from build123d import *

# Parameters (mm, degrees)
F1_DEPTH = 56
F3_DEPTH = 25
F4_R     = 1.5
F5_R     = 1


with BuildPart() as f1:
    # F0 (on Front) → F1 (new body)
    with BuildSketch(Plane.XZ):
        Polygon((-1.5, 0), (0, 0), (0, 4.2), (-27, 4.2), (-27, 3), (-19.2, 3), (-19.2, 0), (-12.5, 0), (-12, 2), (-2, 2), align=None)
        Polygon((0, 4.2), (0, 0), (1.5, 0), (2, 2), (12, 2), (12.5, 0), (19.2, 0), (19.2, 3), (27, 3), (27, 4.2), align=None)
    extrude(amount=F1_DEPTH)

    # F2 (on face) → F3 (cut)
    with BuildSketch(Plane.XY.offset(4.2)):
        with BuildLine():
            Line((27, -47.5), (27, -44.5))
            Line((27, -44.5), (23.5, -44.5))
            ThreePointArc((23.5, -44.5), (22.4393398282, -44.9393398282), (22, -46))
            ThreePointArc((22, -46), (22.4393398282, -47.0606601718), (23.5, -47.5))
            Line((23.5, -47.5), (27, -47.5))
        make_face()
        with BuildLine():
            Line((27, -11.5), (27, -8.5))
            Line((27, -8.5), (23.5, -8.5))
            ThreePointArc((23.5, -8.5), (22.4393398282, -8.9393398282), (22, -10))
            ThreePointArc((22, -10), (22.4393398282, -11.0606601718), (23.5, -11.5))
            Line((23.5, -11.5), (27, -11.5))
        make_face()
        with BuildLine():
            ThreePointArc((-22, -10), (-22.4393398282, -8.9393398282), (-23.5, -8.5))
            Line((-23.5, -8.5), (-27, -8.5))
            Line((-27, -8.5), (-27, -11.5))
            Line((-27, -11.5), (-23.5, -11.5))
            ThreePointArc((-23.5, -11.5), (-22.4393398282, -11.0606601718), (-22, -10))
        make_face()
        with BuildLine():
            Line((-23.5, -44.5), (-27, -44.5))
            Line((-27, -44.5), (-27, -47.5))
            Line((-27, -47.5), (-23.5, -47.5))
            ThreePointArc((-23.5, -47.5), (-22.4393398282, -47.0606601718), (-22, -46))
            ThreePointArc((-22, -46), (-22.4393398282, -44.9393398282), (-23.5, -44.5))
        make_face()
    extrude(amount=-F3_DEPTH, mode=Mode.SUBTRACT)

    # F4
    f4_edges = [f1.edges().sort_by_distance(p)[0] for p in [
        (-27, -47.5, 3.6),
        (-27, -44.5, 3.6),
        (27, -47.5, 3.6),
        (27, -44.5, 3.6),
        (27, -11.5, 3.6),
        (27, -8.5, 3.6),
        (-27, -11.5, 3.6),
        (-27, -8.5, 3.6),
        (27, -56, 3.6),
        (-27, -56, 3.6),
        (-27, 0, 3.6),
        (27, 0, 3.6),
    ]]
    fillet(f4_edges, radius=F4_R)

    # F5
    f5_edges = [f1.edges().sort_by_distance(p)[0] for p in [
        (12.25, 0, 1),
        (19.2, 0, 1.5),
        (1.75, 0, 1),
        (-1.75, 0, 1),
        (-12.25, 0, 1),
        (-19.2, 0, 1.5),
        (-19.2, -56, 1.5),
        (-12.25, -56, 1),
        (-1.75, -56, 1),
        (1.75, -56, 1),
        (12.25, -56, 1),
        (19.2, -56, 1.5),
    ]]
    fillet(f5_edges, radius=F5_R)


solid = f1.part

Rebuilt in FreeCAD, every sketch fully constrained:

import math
import FreeCAD as App
import Part
import Sketcher
Q = App.Units.Quantity


def edges_at(feature, points):
    """Names of the edges that pass closest to the given points."""
    edges = feature.Shape.Edges
    near = lambda p: min(range(len(edges)), key=lambda i: edges[i].distToShape(Part.Vertex(*p))[0])
    return sorted({f"Edge{near(p) + 1}" for p in points})


def add_polygon(sketch, points):
    """Adds a closed chain of lines whose ends are joined by coincident constraints."""
    first, n = sketch.GeometryCount, len(points)
    for a, b in zip(points, points[1:] + points[:1]):
        sketch.addGeometry(Part.LineSegment(App.Vector(*a, 0), App.Vector(*b, 0)), False)
    for i in range(n):
        sketch.addConstraint(Sketcher.Constraint("Coincident", first + i, 2, first + (i + 1) % n, 1))

doc = App.newDocument("Part")
body = doc.addObject("PartDesign::Body", "Body")

sketch1 = body.newObject("Sketcher::SketchObject", "Sketch")
sketch1.AttachmentSupport = (doc.getObject("XZ_Plane"), [""])
sketch1.MapMode = "FlatFace"
add_polygon(sketch1, [(-1.5, 0), (1.5, 0), (2, 2), (12, 2), (12.5, 0), (19.2, 0), (19.2, 3), (27, 3), (27, 4.2), (-27, 4.2), (-27, 3), (-19.2, 3), (-19.2, 0), (-12.5, 0), (-12, 2), (-2, 2)])
sketch1.addConstraint(Sketcher.Constraint("Horizontal", 0))
sketch1.addConstraint(Sketcher.Constraint("Horizontal", 2))
sketch1.addConstraint(Sketcher.Constraint("Horizontal", 4))
sketch1.addConstraint(Sketcher.Constraint("Vertical", 5))
sketch1.addConstraint(Sketcher.Constraint("Horizontal", 6))
sketch1.addConstraint(Sketcher.Constraint("Vertical", 7))
sketch1.addConstraint(Sketcher.Constraint("Horizontal", 8))
sketch1.addConstraint(Sketcher.Constraint("Vertical", 9))
sketch1.addConstraint(Sketcher.Constraint("Horizontal", 10))
sketch1.addConstraint(Sketcher.Constraint("Vertical", 11))
sketch1.addConstraint(Sketcher.Constraint("Horizontal", 12))
sketch1.addConstraint(Sketcher.Constraint("Horizontal", 14))
sketch1.addConstraint(Sketcher.Constraint("Symmetric", 4, 2, 11, 2, -1, 1))
sketch1.addConstraint(Sketcher.Constraint("Symmetric", 0, 2, 15, 2, -1, 1))
sketch1.addConstraint(Sketcher.Constraint("Symmetric", 6, 2, 9, 2, -2))
sketch1.addConstraint(Sketcher.Constraint("Symmetric", 3, 2, 12, 2, -2))
sketch1.addConstraint(Sketcher.Constraint("Symmetric", 2, 2, 13, 2, -2))
sketch1.addConstraint(Sketcher.Constraint("Parallel", 1, 13))
sketch1.addConstraint(Sketcher.Constraint("Parallel", 3, 15))
sketch1.addConstraint(Sketcher.Constraint("Equal", 0, 5))
sketch1.addConstraint(Sketcher.Constraint("DistanceX", 0, 1, 0, 2, Q("3 mm")))
sketch1.addConstraint(Sketcher.Constraint("DistanceX", 2, 1, 2, 2, Q("10 mm")))
sketch1.addConstraint(Sketcher.Constraint("DistanceX", 8, 2, 8, 1, Q("54 mm")))
sketch1.addConstraint(Sketcher.Constraint("DistanceX", 4, 1, 4, 2, Q("6.7 mm")))
sketch1.addConstraint(Sketcher.Constraint("DistanceX", 6, 1, 6, 2, Q("7.8 mm")))
sketch1.addConstraint(Sketcher.Constraint("DistanceY", 7, 1, 7, 2, Q("1.2 mm")))
sketch1.addConstraint(Sketcher.Constraint("DistanceY", -1, 1, 1, 2, Q("2 mm")))
pad1 = body.newObject("PartDesign::Pad", "Pad")
pad1.Profile = sketch1
pad1.Length = 56

sketch2 = body.newObject("Sketcher::SketchObject", "Sketch001")
sketch2.AttachmentSupport = (doc.getObject("XY_Plane"), [""])
sketch2.MapMode = "FlatFace"
sketch2.AttachmentOffset = App.Placement(App.Vector(0, 0, 4.2), App.Rotation())
sketch2.addGeometry(Part.LineSegment(App.Vector(27, -47.5, 0), App.Vector(27, -44.5, 0)), False)
sketch2.addGeometry(Part.LineSegment(App.Vector(27, -44.5, 0), App.Vector(23.5, -44.5, 0)), False)
sketch2.addGeometry(Part.ArcOfCircle(Part.Circle(App.Vector(23.5, -46, 0), App.Vector(0, 0, 1), 1.5), math.radians(90), math.radians(180)), False)
sketch2.addGeometry(Part.ArcOfCircle(Part.Circle(App.Vector(23.5, -46, 0), App.Vector(0, 0, 1), 1.5), math.radians(180), math.radians(270)), False)
sketch2.addGeometry(Part.LineSegment(App.Vector(23.5, -47.5, 0), App.Vector(27, -47.5, 0)), False)
sketch2.addGeometry(Part.LineSegment(App.Vector(27, -11.5, 0), App.Vector(27, -8.5, 0)), False)
sketch2.addGeometry(Part.LineSegment(App.Vector(27, -8.5, 0), App.Vector(23.5, -8.5, 0)), False)
sketch2.addGeometry(Part.ArcOfCircle(Part.Circle(App.Vector(23.5, -10, 0), App.Vector(0, 0, 1), 1.5), math.radians(90), math.radians(180)), False)
sketch2.addGeometry(Part.ArcOfCircle(Part.Circle(App.Vector(23.5, -10, 0), App.Vector(0, 0, 1), 1.5), math.radians(180), math.radians(270)), False)
sketch2.addGeometry(Part.LineSegment(App.Vector(23.5, -11.5, 0), App.Vector(27, -11.5, 0)), False)
sketch2.addGeometry(Part.ArcOfCircle(Part.Circle(App.Vector(-23.5, -10, 0), App.Vector(0, 0, 1), 1.5), math.radians(0), math.radians(90)), False)
sketch2.addGeometry(Part.LineSegment(App.Vector(-23.5, -8.5, 0), App.Vector(-27, -8.5, 0)), False)
sketch2.addGeometry(Part.LineSegment(App.Vector(-27, -8.5, 0), App.Vector(-27, -11.5, 0)), False)
sketch2.addGeometry(Part.LineSegment(App.Vector(-27, -11.5, 0), App.Vector(-23.5, -11.5, 0)), False)
sketch2.addGeometry(Part.ArcOfCircle(Part.Circle(App.Vector(-23.5, -10, 0), App.Vector(0, 0, 1), 1.5), math.radians(-90), math.radians(0)), False)
sketch2.addGeometry(Part.LineSegment(App.Vector(-23.5, -44.5, 0), App.Vector(-27, -44.5, 0)), False)
sketch2.addGeometry(Part.LineSegment(App.Vector(-27, -44.5, 0), App.Vector(-27, -47.5, 0)), False)
sketch2.addGeometry(Part.LineSegment(App.Vector(-27, -47.5, 0), App.Vector(-23.5, -47.5, 0)), False)
sketch2.addGeometry(Part.ArcOfCircle(Part.Circle(App.Vector(-23.5, -46, 0), App.Vector(0, 0, 1), 1.5), math.radians(-90), math.radians(0)), False)
sketch2.addGeometry(Part.ArcOfCircle(Part.Circle(App.Vector(-23.5, -46, 0), App.Vector(0, 0, 1), 1.5), math.radians(0), math.radians(90)), False)
sketch2.addConstraint(Sketcher.Constraint("Coincident", 0, 2, 1, 1))
sketch2.addConstraint(Sketcher.Constraint("Tangent", 1, 2, 2, 1))
sketch2.addConstraint(Sketcher.Constraint("Tangent", 2, 2, 3, 1))
sketch2.addConstraint(Sketcher.Constraint("Tangent", 3, 2, 4, 1))
sketch2.addConstraint(Sketcher.Constraint("Coincident", 4, 2, 0, 1))
sketch2.addConstraint(Sketcher.Constraint("Coincident", 5, 2, 6, 1))
sketch2.addConstraint(Sketcher.Constraint("Tangent", 6, 2, 7, 1))
sketch2.addConstraint(Sketcher.Constraint("Tangent", 7, 2, 8, 1))
sketch2.addConstraint(Sketcher.Constraint("Tangent", 8, 2, 9, 1))
sketch2.addConstraint(Sketcher.Constraint("Coincident", 9, 2, 5, 1))
sketch2.addConstraint(Sketcher.Constraint("Tangent", 10, 2, 11, 1))
sketch2.addConstraint(Sketcher.Constraint("Coincident", 11, 2, 12, 1))
sketch2.addConstraint(Sketcher.Constraint("Coincident", 12, 2, 13, 1))
sketch2.addConstraint(Sketcher.Constraint("Tangent", 13, 2, 14, 1))
sketch2.addConstraint(Sketcher.Constraint("Tangent", 14, 2, 10, 1))
sketch2.addConstraint(Sketcher.Constraint("Coincident", 15, 2, 16, 1))
sketch2.addConstraint(Sketcher.Constraint("Coincident", 16, 2, 17, 1))
sketch2.addConstraint(Sketcher.Constraint("Tangent", 17, 2, 18, 1))
sketch2.addConstraint(Sketcher.Constraint("Tangent", 18, 2, 19, 1))
sketch2.addConstraint(Sketcher.Constraint("Tangent", 19, 2, 15, 1))
sketch2.addConstraint(Sketcher.Constraint("Vertical", 0))
sketch2.addConstraint(Sketcher.Constraint("Horizontal", 1))
sketch2.addConstraint(Sketcher.Constraint("Horizontal", 4))
sketch2.addConstraint(Sketcher.Constraint("Vertical", 5))
sketch2.addConstraint(Sketcher.Constraint("Horizontal", 6))
sketch2.addConstraint(Sketcher.Constraint("Horizontal", 9))
sketch2.addConstraint(Sketcher.Constraint("Horizontal", 11))
sketch2.addConstraint(Sketcher.Constraint("Vertical", 12))
sketch2.addConstraint(Sketcher.Constraint("Horizontal", 13))
sketch2.addConstraint(Sketcher.Constraint("Horizontal", 15))
sketch2.addConstraint(Sketcher.Constraint("Vertical", 16))
sketch2.addConstraint(Sketcher.Constraint("Horizontal", 17))
sketch2.addConstraint(Sketcher.Constraint("Equal", 2, 3))
sketch2.addConstraint(Sketcher.Constraint("Equal", 3, 7))
sketch2.addConstraint(Sketcher.Constraint("Equal", 7, 8))
sketch2.addConstraint(Sketcher.Constraint("Equal", 8, 10))
sketch2.addConstraint(Sketcher.Constraint("Equal", 10, 14))
sketch2.addConstraint(Sketcher.Constraint("Equal", 14, 18))
sketch2.addConstraint(Sketcher.Constraint("Equal", 18, 19))
sketch2.addConstraint(Sketcher.Constraint("Symmetric", 7, 3, 10, 3, -2))
sketch2.addConstraint(Sketcher.Constraint("Symmetric", 2, 3, 18, 3, -2))
sketch2.addConstraint(Sketcher.Constraint("Horizontal", 19, 3, 2, 2))
sketch2.addConstraint(Sketcher.Constraint("Horizontal", 14, 3, 7, 2))
sketch2.addConstraint(Sketcher.Constraint("Horizontal", 7, 2, 14, 2))
sketch2.addConstraint(Sketcher.Constraint("Horizontal", 2, 2, 18, 2))
sketch2.addConstraint(Sketcher.Constraint("Vertical", 3, 3, 7, 3))
sketch2.addConstraint(Sketcher.Constraint("Vertical", 4, 2, 5, 2))
sketch2.addConstraint(Sketcher.Constraint("Vertical", 12, 2, 15, 2))
sketch2.addConstraint(Sketcher.Constraint("Equal", 9, 11))
sketch2.addConstraint(Sketcher.Constraint("Radius", 2, Q("1.5 mm")))
sketch2.addConstraint(Sketcher.Constraint("DistanceX", 1, 2, 1, 1, Q("3.5 mm")))
sketch2.addConstraint(Sketcher.Constraint("DistanceY", 2, 3, -1, 1, Q("46 mm")))
sketch2.addConstraint(Sketcher.Constraint("DistanceY", 7, 3, -1, 1, Q("10 mm")))
sketch2.addConstraint(Sketcher.Constraint("DistanceX", -1, 1, 0, 2, Q("27 mm")))
pocket1 = body.newObject("PartDesign::Pocket", "Pocket")
pocket1.Profile = sketch2
pocket1.Length = 25
doc.recompute()

fillet = body.newObject("PartDesign::Fillet", "Fillet")
fillet.Base = (pocket1, edges_at(pocket1, [
    (-27, -47.5, 3.6),
    (-27, -44.5, 3.6),
    (27, -47.5, 3.6),
    (27, -44.5, 3.6),
    (27, -11.5, 3.6),
    (27, -8.5, 3.6),
    (-27, -11.5, 3.6),
    (-27, -8.5, 3.6),
    (27, -56, 3.6),
    (-27, -56, 3.6),
    (-27, 0, 3.6),
    (27, 0, 3.6),
]))
fillet.Radius = 1.5
doc.recompute()

fillet2 = body.newObject("PartDesign::Fillet", "Fillet001")
fillet2.Base = (fillet, edges_at(fillet, [
    (12.25, 0, 1),
    (19.2, 0, 1.5),
    (1.75, 0, 1),
    (-1.75, 0, 1),
    (-12.25, 0, 1),
    (-19.2, 0, 1.5),
    (-19.2, -56, 1.5),
    (-12.25, -56, 1),
    (-1.75, -56, 1),
    (1.75, -56, 1),
    (12.25, -56, 1),
    (19.2, -56, 1.5),
]))
fillet2.Radius = 1

doc.recompute()
